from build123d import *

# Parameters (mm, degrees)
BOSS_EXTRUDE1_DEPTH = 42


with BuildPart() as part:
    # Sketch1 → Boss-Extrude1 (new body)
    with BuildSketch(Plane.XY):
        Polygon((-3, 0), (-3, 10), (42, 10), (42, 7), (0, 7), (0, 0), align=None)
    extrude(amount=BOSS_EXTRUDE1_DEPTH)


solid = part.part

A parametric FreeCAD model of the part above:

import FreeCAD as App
import Part
import Sketcher
Q = App.Units.Quantity


def add_polygon(sketch, points):
    """Adds a closed chain of lines whose ends are joined by coincident constraints."""
    first, n = sketch.GeometryCount, len(points)
    for a, b in zip(points, points[1:] + points[:1]):
        sketch.addGeometry(Part.LineSegment(App.Vector(*a, 0), App.Vector(*b, 0)), False)
    for i in range(n):
        sketch.addConstraint(Sketcher.Constraint("Coincident", first + i, 2, first + (i + 1) % n, 1))

doc = App.newDocument("Part")
body = doc.addObject("PartDesign::Body", "Body")

sketch1 = doc.addObject("Sketcher::SketchObject", "Sketch")
body.addObject(sketch1)
sketch1.AttachmentSupport = (doc.XY_Plane, [""])
sketch1.MapMode = "FlatFace"
add_polygon(sketch1, [(-3, 10), (-3, 0), (0, 0), (0, 7), (42, 7), (42, 10)])
sketch1.addConstraint(Sketcher.Constraint("Vertical", 0))
sketch1.addConstraint(Sketcher.Constraint("Horizontal", 1))
sketch1.addConstraint(Sketcher.Constraint("Vertical", 2))
sketch1.addConstraint(Sketcher.Constraint("Horizontal", 3))
sketch1.addConstraint(Sketcher.Constraint("Vertical", 4))
sketch1.addConstraint(Sketcher.Constraint("Horizontal", 5))
sketch1.addConstraint(Sketcher.Constraint("Coincident", 1, 2, -1, 1))
sketch1.addConstraint(Sketcher.Constraint("Equal", 1, 4))
sketch1.addConstraint(Sketcher.Constraint("DistanceX", 1, 1, 1, 2, Q("3 mm")))
sketch1.addConstraint(Sketcher.Constraint("DistanceX", 3, 1, 3, 2, Q("42 mm")))
sketch1.addConstraint(Sketcher.Constraint("DistanceY", 0, 2, 0, 1, Q("10 mm")))
pad1 = doc.addObject("PartDesign::Pad", "Pad")
body.addObject(pad1)
pad1.Profile = sketch1
pad1.Length = 42

doc.recompute()
